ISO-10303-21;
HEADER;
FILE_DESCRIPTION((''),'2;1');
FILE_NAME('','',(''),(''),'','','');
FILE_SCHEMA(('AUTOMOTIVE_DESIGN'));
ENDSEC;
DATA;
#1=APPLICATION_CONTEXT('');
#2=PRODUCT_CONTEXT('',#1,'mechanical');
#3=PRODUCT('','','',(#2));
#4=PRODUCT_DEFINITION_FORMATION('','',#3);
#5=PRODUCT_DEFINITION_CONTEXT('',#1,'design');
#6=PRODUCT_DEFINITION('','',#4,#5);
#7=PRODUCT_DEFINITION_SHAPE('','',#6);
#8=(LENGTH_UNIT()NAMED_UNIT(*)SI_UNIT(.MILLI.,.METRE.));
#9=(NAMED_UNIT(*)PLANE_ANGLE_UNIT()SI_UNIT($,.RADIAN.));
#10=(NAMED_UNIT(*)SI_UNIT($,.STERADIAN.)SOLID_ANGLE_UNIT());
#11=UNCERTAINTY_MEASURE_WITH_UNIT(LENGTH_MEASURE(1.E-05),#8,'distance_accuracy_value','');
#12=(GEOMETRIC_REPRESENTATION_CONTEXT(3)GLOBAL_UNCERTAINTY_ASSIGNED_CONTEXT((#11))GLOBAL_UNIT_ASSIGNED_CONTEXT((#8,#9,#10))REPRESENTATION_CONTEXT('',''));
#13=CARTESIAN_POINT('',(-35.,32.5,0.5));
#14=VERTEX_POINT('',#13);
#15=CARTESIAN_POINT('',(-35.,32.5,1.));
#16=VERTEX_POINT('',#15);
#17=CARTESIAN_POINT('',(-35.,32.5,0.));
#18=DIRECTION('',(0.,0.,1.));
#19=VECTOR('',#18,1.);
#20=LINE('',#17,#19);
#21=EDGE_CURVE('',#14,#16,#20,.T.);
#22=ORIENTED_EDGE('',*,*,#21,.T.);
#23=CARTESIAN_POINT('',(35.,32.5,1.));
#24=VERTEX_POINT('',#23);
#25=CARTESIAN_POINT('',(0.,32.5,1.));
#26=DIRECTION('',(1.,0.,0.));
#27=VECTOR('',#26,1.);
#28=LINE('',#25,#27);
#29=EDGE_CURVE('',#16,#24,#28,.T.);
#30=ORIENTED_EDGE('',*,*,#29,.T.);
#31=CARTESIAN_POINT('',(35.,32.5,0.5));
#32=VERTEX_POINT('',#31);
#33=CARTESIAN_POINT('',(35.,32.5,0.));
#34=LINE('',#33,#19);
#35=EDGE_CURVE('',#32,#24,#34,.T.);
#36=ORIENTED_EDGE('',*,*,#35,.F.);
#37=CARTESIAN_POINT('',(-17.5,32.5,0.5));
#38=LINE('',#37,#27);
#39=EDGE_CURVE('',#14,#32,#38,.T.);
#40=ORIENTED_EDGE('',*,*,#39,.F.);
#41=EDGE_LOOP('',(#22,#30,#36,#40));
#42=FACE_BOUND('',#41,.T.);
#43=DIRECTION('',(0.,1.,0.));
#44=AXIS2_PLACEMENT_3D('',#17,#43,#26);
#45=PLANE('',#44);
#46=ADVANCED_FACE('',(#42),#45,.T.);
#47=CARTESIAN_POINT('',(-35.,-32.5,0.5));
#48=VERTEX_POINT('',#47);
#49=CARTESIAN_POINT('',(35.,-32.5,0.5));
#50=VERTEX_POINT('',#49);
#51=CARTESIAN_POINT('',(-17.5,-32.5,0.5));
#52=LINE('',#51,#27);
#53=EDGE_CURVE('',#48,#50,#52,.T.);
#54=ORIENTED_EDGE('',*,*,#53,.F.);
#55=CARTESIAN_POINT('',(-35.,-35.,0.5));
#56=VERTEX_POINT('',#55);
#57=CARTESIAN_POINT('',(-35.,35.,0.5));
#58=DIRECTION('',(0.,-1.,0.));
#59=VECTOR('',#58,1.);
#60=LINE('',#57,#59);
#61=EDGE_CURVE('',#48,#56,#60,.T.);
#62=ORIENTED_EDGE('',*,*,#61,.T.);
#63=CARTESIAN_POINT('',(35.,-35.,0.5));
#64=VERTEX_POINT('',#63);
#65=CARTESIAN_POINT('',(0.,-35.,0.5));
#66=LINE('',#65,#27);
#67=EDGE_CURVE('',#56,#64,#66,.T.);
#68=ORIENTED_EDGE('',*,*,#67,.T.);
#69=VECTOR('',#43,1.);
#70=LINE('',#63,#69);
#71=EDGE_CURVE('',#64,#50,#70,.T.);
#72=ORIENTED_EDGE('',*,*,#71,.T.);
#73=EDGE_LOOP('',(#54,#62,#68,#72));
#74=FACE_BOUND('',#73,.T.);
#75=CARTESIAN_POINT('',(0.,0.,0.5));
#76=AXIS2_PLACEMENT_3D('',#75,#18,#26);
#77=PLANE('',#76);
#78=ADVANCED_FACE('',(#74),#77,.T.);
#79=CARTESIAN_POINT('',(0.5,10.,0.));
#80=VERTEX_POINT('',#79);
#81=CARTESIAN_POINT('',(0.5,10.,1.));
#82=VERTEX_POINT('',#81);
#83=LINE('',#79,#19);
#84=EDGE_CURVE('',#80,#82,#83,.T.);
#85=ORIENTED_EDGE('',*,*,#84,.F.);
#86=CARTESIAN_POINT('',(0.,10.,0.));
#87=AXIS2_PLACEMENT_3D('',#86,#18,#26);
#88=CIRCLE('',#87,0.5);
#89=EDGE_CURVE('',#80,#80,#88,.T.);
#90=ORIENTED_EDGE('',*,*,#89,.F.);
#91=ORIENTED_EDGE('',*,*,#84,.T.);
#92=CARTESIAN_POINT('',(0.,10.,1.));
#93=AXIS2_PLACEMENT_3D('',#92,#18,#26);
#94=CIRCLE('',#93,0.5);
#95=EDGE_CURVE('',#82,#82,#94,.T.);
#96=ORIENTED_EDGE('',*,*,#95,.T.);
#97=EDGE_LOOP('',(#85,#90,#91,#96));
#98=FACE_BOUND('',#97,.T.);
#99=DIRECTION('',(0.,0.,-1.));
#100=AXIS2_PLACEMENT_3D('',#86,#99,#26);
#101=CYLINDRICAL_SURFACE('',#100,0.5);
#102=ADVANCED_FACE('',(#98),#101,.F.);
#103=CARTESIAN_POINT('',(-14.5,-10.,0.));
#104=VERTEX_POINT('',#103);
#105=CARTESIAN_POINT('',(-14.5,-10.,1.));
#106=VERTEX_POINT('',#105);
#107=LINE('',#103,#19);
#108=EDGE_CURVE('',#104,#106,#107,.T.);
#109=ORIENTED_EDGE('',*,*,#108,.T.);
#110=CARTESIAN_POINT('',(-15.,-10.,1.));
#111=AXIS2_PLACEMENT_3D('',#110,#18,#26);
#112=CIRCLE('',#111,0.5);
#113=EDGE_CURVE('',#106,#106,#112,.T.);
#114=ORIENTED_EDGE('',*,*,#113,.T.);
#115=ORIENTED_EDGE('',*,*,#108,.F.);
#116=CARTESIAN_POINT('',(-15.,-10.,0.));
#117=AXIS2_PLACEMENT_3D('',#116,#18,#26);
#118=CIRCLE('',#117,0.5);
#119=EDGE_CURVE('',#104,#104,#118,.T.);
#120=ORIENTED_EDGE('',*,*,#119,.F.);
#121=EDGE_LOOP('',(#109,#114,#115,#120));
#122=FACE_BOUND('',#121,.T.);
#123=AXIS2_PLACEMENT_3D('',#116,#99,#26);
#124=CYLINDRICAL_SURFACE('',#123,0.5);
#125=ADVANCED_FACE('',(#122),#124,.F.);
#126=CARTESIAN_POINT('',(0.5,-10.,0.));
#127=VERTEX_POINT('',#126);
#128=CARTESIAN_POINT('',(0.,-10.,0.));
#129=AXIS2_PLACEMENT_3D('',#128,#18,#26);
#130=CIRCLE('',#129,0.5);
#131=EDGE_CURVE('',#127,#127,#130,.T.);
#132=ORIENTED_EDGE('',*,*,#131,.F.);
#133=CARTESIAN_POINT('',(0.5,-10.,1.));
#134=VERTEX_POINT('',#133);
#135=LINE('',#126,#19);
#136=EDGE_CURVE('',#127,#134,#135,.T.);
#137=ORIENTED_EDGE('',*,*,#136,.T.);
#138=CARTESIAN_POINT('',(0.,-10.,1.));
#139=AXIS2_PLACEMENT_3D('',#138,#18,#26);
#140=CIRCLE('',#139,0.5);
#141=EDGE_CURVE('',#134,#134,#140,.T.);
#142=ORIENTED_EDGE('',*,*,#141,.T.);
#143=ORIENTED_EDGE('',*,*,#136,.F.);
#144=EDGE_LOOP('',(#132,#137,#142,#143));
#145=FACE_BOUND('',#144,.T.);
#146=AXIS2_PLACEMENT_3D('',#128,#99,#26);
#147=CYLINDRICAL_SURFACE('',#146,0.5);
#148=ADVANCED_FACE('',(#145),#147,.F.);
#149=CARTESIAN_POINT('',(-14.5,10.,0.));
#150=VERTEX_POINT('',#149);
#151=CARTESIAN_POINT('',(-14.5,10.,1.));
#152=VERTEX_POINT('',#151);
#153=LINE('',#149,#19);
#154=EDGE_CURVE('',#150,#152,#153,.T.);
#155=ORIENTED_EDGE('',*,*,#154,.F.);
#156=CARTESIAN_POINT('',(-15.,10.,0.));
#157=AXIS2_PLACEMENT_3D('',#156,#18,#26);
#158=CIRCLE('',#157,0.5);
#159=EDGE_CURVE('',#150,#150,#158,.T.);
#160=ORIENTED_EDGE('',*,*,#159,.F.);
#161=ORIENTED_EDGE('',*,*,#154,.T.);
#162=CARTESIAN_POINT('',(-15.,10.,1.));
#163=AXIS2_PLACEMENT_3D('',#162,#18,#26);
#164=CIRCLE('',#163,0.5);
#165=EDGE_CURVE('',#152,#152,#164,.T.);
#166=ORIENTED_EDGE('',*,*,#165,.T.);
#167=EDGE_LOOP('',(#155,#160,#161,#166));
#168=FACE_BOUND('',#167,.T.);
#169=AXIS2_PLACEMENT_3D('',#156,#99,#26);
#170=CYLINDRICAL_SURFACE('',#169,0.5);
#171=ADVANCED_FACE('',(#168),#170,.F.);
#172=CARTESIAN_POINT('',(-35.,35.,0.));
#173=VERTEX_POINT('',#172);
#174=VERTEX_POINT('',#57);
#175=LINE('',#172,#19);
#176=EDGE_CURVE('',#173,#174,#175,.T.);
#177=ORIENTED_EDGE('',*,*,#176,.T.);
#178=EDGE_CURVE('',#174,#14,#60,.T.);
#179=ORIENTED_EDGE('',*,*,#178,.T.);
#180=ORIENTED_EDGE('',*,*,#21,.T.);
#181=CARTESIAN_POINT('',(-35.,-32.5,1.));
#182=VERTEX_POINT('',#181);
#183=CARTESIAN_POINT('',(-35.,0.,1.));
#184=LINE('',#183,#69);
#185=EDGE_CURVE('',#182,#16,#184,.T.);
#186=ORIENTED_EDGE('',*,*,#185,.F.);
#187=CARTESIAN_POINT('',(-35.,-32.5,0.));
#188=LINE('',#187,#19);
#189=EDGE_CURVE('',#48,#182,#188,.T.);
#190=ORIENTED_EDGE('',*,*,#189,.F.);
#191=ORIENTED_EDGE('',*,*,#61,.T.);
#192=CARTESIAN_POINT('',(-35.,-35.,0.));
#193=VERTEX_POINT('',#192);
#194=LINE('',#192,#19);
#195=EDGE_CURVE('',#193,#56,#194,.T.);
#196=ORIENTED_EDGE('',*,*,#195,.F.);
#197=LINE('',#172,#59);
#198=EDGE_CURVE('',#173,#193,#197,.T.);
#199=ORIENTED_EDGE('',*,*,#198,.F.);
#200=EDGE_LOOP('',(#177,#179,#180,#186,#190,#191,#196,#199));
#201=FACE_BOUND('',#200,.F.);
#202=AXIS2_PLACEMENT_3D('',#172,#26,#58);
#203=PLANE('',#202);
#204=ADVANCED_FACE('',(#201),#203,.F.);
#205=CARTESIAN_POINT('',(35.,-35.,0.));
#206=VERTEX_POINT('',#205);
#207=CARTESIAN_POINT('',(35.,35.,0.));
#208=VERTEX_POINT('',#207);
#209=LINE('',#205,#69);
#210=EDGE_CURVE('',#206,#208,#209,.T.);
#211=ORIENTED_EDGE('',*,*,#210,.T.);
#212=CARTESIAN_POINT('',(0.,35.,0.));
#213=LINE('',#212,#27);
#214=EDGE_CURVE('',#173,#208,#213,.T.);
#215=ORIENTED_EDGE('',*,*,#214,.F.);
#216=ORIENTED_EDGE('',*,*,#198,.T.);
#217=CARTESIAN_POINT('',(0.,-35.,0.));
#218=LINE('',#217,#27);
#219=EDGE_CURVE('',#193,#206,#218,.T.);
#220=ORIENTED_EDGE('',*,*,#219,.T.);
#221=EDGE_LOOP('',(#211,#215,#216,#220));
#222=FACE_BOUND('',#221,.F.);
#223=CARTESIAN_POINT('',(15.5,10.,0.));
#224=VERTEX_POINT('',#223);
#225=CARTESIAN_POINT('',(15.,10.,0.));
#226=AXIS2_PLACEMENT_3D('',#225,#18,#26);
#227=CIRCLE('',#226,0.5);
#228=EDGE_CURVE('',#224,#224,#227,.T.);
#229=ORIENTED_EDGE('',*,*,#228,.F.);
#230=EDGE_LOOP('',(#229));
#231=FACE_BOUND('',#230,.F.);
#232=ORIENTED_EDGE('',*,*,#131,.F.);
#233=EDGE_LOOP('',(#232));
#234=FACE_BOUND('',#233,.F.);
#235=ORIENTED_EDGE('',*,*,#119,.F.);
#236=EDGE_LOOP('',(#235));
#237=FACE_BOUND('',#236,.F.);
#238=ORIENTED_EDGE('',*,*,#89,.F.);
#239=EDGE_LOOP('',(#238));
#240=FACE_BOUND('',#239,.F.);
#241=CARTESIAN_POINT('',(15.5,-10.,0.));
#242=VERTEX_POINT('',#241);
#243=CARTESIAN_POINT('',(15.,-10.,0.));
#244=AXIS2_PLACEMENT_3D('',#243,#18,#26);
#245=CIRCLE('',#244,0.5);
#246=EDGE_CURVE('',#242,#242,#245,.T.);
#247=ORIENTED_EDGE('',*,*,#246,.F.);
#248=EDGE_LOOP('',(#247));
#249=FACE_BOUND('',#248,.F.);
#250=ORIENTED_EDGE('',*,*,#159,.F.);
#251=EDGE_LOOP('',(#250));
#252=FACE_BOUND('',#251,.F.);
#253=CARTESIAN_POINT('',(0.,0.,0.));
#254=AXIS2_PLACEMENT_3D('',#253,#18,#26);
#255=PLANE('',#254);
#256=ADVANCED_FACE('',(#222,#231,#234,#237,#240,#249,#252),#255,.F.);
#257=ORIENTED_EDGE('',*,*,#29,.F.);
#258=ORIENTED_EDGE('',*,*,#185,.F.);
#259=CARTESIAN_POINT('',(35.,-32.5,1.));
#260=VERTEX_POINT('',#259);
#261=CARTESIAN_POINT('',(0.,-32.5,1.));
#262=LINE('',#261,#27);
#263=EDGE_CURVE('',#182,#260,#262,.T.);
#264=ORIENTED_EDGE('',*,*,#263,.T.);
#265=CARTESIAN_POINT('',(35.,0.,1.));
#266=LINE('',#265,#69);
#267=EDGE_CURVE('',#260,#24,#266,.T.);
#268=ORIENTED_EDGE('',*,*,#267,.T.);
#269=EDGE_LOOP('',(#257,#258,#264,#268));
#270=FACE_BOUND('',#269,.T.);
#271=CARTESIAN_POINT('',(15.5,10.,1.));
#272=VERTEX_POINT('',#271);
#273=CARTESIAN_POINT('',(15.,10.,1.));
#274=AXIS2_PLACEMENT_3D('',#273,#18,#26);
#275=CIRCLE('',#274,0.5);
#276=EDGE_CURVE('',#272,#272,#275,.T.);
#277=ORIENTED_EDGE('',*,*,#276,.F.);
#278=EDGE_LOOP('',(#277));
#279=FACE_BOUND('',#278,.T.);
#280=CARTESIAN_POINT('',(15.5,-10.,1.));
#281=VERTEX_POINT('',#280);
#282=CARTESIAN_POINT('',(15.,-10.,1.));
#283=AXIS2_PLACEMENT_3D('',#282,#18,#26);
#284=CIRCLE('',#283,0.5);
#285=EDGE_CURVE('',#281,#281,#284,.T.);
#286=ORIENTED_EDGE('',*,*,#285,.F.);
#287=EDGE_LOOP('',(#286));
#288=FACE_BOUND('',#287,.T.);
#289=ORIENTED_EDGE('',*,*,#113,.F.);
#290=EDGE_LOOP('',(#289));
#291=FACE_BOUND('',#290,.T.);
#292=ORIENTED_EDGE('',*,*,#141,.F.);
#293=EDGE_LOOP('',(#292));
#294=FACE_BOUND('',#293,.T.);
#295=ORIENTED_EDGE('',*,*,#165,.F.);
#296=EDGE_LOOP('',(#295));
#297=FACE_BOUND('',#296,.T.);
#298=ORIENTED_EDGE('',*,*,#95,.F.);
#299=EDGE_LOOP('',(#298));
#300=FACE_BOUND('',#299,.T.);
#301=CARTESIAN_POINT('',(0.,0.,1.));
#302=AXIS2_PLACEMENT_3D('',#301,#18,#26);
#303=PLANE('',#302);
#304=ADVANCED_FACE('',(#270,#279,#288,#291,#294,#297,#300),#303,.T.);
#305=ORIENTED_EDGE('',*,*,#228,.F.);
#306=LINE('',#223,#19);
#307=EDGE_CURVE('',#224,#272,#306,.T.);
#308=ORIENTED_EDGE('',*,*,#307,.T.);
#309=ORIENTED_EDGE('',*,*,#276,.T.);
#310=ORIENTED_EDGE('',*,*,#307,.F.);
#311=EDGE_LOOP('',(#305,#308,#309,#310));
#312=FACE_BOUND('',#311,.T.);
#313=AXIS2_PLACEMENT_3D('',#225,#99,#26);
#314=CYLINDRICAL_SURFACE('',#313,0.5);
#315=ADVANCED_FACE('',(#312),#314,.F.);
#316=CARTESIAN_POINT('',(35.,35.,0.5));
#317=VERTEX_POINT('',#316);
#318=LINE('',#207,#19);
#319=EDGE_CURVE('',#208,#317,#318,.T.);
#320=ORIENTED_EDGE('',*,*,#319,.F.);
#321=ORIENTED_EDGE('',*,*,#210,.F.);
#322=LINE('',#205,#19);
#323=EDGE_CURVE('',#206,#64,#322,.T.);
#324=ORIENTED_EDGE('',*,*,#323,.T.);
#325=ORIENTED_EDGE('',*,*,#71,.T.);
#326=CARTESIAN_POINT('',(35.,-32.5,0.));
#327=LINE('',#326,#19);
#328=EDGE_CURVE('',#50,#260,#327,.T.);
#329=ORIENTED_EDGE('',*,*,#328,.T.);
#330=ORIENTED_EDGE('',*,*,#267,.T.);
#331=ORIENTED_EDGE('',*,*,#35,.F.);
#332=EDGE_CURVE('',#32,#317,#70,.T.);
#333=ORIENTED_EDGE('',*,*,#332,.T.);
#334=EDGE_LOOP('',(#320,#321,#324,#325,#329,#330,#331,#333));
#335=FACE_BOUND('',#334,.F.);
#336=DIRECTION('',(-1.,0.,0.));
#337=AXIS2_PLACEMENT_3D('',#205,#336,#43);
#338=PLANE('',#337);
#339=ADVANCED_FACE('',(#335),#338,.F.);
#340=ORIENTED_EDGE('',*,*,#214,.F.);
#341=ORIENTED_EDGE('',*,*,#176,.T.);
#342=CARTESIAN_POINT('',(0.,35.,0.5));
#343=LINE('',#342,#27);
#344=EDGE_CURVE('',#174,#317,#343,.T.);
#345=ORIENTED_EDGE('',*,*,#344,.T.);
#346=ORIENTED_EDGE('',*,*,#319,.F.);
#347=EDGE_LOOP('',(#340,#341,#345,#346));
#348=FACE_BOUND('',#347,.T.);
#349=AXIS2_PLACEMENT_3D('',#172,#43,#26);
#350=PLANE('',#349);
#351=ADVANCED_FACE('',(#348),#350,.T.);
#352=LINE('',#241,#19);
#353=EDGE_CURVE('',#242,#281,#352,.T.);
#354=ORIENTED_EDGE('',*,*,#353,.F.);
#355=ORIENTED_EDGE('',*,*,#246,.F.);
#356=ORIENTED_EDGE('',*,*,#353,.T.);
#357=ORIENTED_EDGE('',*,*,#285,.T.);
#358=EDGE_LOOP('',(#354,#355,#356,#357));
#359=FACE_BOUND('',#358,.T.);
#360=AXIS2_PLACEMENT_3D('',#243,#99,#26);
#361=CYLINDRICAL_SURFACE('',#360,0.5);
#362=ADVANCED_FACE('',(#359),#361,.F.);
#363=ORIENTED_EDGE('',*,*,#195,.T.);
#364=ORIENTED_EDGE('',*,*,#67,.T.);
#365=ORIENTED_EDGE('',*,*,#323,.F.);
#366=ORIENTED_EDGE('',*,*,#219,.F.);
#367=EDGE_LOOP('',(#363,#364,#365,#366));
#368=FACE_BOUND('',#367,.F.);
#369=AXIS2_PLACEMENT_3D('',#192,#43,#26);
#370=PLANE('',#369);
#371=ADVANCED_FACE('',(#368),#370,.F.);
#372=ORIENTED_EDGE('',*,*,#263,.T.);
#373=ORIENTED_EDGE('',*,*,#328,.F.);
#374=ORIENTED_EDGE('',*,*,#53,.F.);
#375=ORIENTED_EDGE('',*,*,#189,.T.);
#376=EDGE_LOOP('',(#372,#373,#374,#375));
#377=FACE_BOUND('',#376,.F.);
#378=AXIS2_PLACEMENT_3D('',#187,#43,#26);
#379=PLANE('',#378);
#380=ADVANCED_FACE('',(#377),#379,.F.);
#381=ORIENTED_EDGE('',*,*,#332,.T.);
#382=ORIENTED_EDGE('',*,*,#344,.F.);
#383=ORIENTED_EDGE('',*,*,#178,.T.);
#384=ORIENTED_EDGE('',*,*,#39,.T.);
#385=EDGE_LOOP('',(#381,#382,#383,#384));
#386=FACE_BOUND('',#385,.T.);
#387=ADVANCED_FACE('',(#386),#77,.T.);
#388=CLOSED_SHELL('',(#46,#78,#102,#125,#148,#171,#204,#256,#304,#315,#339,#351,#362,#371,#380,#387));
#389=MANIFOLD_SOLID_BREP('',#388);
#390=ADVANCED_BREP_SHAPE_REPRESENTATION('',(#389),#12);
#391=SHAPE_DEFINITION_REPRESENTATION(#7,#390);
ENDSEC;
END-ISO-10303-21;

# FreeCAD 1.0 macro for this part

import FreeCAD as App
import Part
import Sketcher

V = App.Vector

doc = App.newDocument("Part")
body = doc.addObject("PartDesign::Body", "Body")

# Sketch on XY plane
sketch1 = body.newObject("Sketcher::SketchObject", "Sketch")
sketch1.AttachmentSupport = (doc.getObject("XY_Plane"), [""])
sketch1.MapMode = "FlatFace"
sketch1.addGeometry([
    Part.LineSegment(V(-35, 32.5, 0), V(-35, -32.5, 0)),  # 0
    Part.LineSegment(V(-35, -32.5, 0), V(35, -32.5, 0)),  # 1
    Part.LineSegment(V(35, -32.5, 0), V(35, 32.5, 0)),  # 2
    Part.LineSegment(V(35, 32.5, 0), V(-35, 32.5, 0)),  # 3
    Part.Circle(V(-15, -10, 0), V(0, 0, 1), 0.5),  # 4
    Part.Circle(V(0, -10, 0), V(0, 0, 1), 0.5),  # 5
    Part.Circle(V(15, -10, 0), V(0, 0, 1), 0.5),  # 6
    Part.Circle(V(-15, 10, 0), V(0, 0, 1), 0.5),  # 7
    Part.Circle(V(0, 10, 0), V(0, 0, 1), 0.5),  # 8
    Part.Circle(V(15, 10, 0), V(0, 0, 1), 0.5),  # 9
], False)
sketch1.addConstraint([
    Sketcher.Constraint("Coincident", 0, 2, 1, 1),
    Sketcher.Constraint("Coincident", 1, 2, 2, 1),
    Sketcher.Constraint("Coincident", 2, 2, 3, 1),
    Sketcher.Constraint("Coincident", 3, 2, 0, 1),
    Sketcher.Constraint("Vertical", 0),
    Sketcher.Constraint("Horizontal", 1),
    Sketcher.Constraint("Vertical", 2),
    Sketcher.Constraint("Horizontal", 3),
    Sketcher.Constraint("Equal", 4, 5),
    Sketcher.Constraint("Equal", 5, 6),
    Sketcher.Constraint("Equal", 6, 7),
    Sketcher.Constraint("Equal", 7, 8),
    Sketcher.Constraint("Equal", 8, 9),
    Sketcher.Constraint("Symmetric", 6, 3, 7, 3, -1, 1),
    Sketcher.Constraint("Symmetric", 5, 3, 8, 3, -1, 1),
    Sketcher.Constraint("Symmetric", 4, 3, 9, 3, -1, 1),
    Sketcher.Constraint("Symmetric", 0, 2, 2, 2, -1, 1),
    Sketcher.Constraint("Symmetric", 4, 3, 6, 3, -2),
    Sketcher.Constraint("PointOnObject", 5, 3, -2),
    Sketcher.Constraint("Horizontal", 4, 3, 5, 3),
    Sketcher.Constraint("Diameter", 4, 1.0),
    Sketcher.Constraint("DistanceX", 1, 1, 1, 2, 70.0),
    Sketcher.Constraint("DistanceY", 0, 2, 0, 1, 65.0),
    Sketcher.Constraint("DistanceX", 4, 3, -1, 1, 15.0),
    Sketcher.Constraint("DistanceY", 4, 3, -1, 1, 10.0),
])
pad1 = body.newObject("PartDesign::Pad", "Pad")
pad1.Profile = sketch1
pad1.Length = 1

# Sketch on XY plane
sketch2 = body.newObject("Sketcher::SketchObject", "Sketch001")
sketch2.AttachmentSupport = (doc.getObject("XY_Plane"), [""])
sketch2.MapMode = "FlatFace"
sketch2.addGeometry([
    Part.LineSegment(V(35, 35, 0), V(-35, 35, 0)),  # 0
    Part.LineSegment(V(-35, 35, 0), V(-35, -35, 0)),  # 1
    Part.LineSegment(V(-35, -35, 0), V(35, -35, 0)),  # 2
    Part.LineSegment(V(35, -35, 0), V(35, 35, 0)),  # 3
    Part.Circle(V(-15, -10, 0), V(0, 0, 1), 0.5),  # 4
    Part.Circle(V(0, -10, 0), V(0, 0, 1), 0.5),  # 5
    Part.Circle(V(15, -10, 0), V(0, 0, 1), 0.5),  # 6
    Part.Circle(V(-15, 10, 0), V(0, 0, 1), 0.5),  # 7
    Part.Circle(V(0, 10, 0), V(0, 0, 1), 0.5),  # 8
    Part.Circle(V(15, 10, 0), V(0, 0, 1), 0.5),  # 9
], False)
sketch2.addConstraint([
    Sketcher.Constraint("Coincident", 0, 2, 1, 1),
    Sketcher.Constraint("Coincident", 1, 2, 2, 1),
    Sketcher.Constraint("Coincident", 2, 2, 3, 1),
    Sketcher.Constraint("Coincident", 3, 2, 0, 1),
    Sketcher.Constraint("Horizontal", 0),
    Sketcher.Constraint("Vertical", 1),
    Sketcher.Constraint("Horizontal", 2),
    Sketcher.Constraint("Vertical", 3),
    Sketcher.Constraint("Equal", 4, 5),
    Sketcher.Constraint("Equal", 5, 6),
    Sketcher.Constraint("Equal", 6, 7),
    Sketcher.Constraint("Equal", 7, 8),
    Sketcher.Constraint("Equal", 8, 9),
    Sketcher.Constraint("Symmetric", 6, 3, 7, 3, -1, 1),
    Sketcher.Constraint("Symmetric", 5, 3, 8, 3, -1, 1),
    Sketcher.Constraint("Symmetric", 4, 3, 9, 3, -1, 1),
    Sketcher.Constraint("Symmetric", 0, 2, 2, 2, -1, 1),
    Sketcher.Constraint("Symmetric", 4, 3, 6, 3, -2),
    Sketcher.Constraint("PointOnObject", 5, 3, -2),
    Sketcher.Constraint("Horizontal", 4, 3, 5, 3),
    Sketcher.Constraint("Equal", 2, 1),
    Sketcher.Constraint("Diameter", 4, 1.0),
    Sketcher.Constraint("DistanceX", 0, 2, 0, 1, 70.0),
    Sketcher.Constraint("DistanceX", 4, 3, -1, 1, 15.0),
    Sketcher.Constraint("DistanceY", 4, 3, -1, 1, 10.0),
])
pad2 = body.newObject("PartDesign::Pad", "Pad001")
pad2.Profile = sketch2
pad2.Length = 0.5

doc.recompute()
